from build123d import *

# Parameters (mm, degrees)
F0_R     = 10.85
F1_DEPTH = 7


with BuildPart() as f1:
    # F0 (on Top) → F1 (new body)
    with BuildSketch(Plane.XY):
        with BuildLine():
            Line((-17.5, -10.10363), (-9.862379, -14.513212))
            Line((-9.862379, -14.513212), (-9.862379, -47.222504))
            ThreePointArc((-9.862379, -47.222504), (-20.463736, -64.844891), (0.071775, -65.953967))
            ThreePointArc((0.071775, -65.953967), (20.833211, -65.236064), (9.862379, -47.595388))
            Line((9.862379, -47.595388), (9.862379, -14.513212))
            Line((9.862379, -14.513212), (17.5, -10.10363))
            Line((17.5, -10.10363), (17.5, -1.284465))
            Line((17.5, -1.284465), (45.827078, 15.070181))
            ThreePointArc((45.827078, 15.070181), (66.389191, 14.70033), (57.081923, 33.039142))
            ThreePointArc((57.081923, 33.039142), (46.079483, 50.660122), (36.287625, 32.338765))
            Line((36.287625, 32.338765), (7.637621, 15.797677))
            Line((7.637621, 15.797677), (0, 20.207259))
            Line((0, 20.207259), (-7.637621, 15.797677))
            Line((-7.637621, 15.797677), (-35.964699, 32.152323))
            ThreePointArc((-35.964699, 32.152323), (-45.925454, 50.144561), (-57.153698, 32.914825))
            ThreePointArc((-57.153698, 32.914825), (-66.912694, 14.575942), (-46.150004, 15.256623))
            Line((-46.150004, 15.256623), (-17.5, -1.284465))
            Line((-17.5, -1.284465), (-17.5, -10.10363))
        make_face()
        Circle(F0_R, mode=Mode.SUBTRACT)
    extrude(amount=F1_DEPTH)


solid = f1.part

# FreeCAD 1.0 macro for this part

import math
import FreeCAD as App
import Part
import Sketcher

V = App.Vector
Q = App.Units.Quantity

doc = App.newDocument("Part")
params = doc.addObject("Spreadsheet::Sheet", "Params")
for row, (alias, value) in enumerate([
    ("sketch1_radius", "12 mm"),
    ("sketch1_diameter", "21.7 mm"),
    ("pad1_length", "7 mm"),
], start=1):
    params.set(f"A{row}", alias)
    params.set(f"B{row}", "=" + value)
    params.setAlias(f"B{row}", alias)

body = doc.addObject("PartDesign::Body", "Body")

sketch1 = body.newObject("Sketcher::SketchObject", "Sketch")
sketch1.AttachmentSupport = (doc.getObject("XY_Plane"), [""])
sketch1.MapMode = "FlatFace"
sketch1.addGeometry([
    Part.LineSegment(V(-18, -10, 0), V(-10, -15, 0)),
    Part.LineSegment(V(-10, -15, 0), V(-10, -47, 0)),
    Part.ArcOfCircle(Part.Circle(V(-10, -59, 0), V(0, 0, 1), 12), math.radians(90), math.radians(326)),
    Part.ArcOfCircle(Part.Circle(V(10, -60, 0), V(0, 0, 1), 12), math.radians(-148), math.radians(92)),
    Part.LineSegment(V(10, -48, 0), V(10, -15, 0)),
    Part.LineSegment(V(10, -15, 0), V(18, -10, 0)),
    Part.LineSegment(V(18, -10, 0), V(18, -1, 0)),
    Part.LineSegment(V(18, -1, 0), V(46, 15, 0)),
    Part.ArcOfCircle(Part.Circle(V(56, 21, 0), V(0, 0, 1), 12), math.radians(-150), math.radians(86)),
    Part.ArcOfCircle(Part.Circle(V(46, 39, 0), V(0, 0, 1), 12), math.radians(-28), math.radians(212)),
    Part.LineSegment(V(36, 32, 0), V(8, 16, 0)),
    Part.LineSegment(V(8, 16, 0), V(0, 20, 0)),
    Part.LineSegment(V(0, 20, 0), V(-8, 16, 0)),
    Part.LineSegment(V(-8, 16, 0), V(-36, 32, 0)),
    Part.ArcOfCircle(Part.Circle(V(-46, 38, 0), V(0, 0, 1), 12), math.radians(-30), math.radians(206)),
    Part.ArcOfCircle(Part.Circle(V(-57, 21, 0), V(0, 0, 1), 12), math.radians(92), math.radians(332)),
    Part.LineSegment(V(-46, 15, 0), V(-18, -1, 0)),
    Part.LineSegment(V(-18, -1, 0), V(-18, -10, 0)),
    Part.Circle(V(0, 0, 0), V(0, 0, 1), 11),
], False)
sketch1.addConstraint([
    Sketcher.Constraint("Coincident", 0, 2, 1, 1),
    Sketcher.Constraint("Coincident", 1, 2, 2, 1),
    Sketcher.Constraint("Coincident", 2, 2, 3, 1),
    Sketcher.Constraint("Coincident", 3, 2, 4, 1),
    Sketcher.Constraint("Coincident", 4, 2, 5, 1),
    Sketcher.Constraint("Coincident", 5, 2, 6, 1),
    Sketcher.Constraint("Coincident", 6, 2, 7, 1),
    Sketcher.Constraint("Coincident", 7, 2, 8, 1),
    Sketcher.Constraint("Coincident", 8, 2, 9, 1),
    Sketcher.Constraint("Coincident", 9, 2, 10, 1),
    Sketcher.Constraint("Coincident", 10, 2, 11, 1),
    Sketcher.Constraint("Coincident", 11, 2, 12, 1),
    Sketcher.Constraint("Coincident", 12, 2, 13, 1),
    Sketcher.Constraint("Coincident", 13, 2, 14, 1),
    Sketcher.Constraint("Coincident", 14, 2, 15, 1),
    Sketcher.Constraint("Coincident", 15, 2, 16, 1),
    Sketcher.Constraint("Coincident", 16, 2, 17, 1),
    Sketcher.Constraint("Coincident", 17, 2, 0, 1),
    Sketcher.Constraint("Vertical", 1),
    Sketcher.Constraint("Vertical", 4),
    Sketcher.Constraint("Vertical", 6),
    Sketcher.Constraint("Vertical", 17),
    Sketcher.Constraint("Coincident", 18, 3, -1, 1),
    Sketcher.Constraint("Equal", 2, 3),
    Sketcher.Constraint("Equal", 3, 8),
    Sketcher.Constraint("Equal", 8, 9),
    Sketcher.Constraint("Equal", 9, 14),
    Sketcher.Constraint("Equal", 14, 15),
    Sketcher.Constraint("Symmetric", 0, 2, 4, 2, -2),
    Sketcher.Constraint("Symmetric", 10, 2, 12, 2, -2),
    Sketcher.Constraint("Symmetric", 6, 2, 16, 2, -2),
    Sketcher.Constraint("PointOnObject", 11, 2, -2),
    Sketcher.Constraint("Parallel", 5, 7),
    Sketcher.Constraint("Parallel", 7, 10),
    Sketcher.Constraint("Parallel", 0, 11),
    Sketcher.Constraint("Parallel", 10, 12),
    Sketcher.Constraint("Parallel", 11, 13),
    Sketcher.Constraint("Parallel", 13, 16),
    Sketcher.Constraint("Vertical", 2, 3, 0, 2),
    Sketcher.Constraint("Equal", 5, 11),
    Sketcher.Constraint("Equal", 7, 13),
    Sketcher.Constraint("Equal", 10, 16),
    Sketcher.Constraint("Radius", 2, Q("12 mm")),
    Sketcher.Constraint("Diameter", 18, Q("21.7 mm")),
    Sketcher.Constraint("Angle", 0, Q("-29.999997 deg")),
    Sketcher.Constraint("DistanceY", 7, 2, 8, 3, Q("6 mm")),
    Sketcher.Constraint("DistanceY", 13, 2, 14, 3, Q("6 mm")),
    Sketcher.Constraint("DistanceX", -1, 1, 5, 2, Q("17.5 mm")),
    Sketcher.Constraint("DistanceX", 14, 2, 13, 2, Q("21.188999 mm")),
    Sketcher.Constraint("DistanceX", 14, 3, 15, 2, Q("0.207 mm")),
    Sketcher.Constraint("DistanceX", 13, 2, -1, 1, Q("35.964699 mm")),
    Sketcher.Constraint("DistanceX", 2, 3, 3, 3, Q("20.107202 mm")),
    Sketcher.Constraint("DistanceY", 14, 3, 9, 3, Q("0.5146 mm")),
    Sketcher.Constraint("DistanceY", 15, 2, 13, 2, Q("16.8957 mm")),
    Sketcher.Constraint("DistanceY", 1, 2, 1, 1, Q("32.709292 mm")),
    Sketcher.Constraint("DistanceY", 4, 1, 4, 2, Q("33.082176 mm")),
    Sketcher.Constraint("DistanceY", 6, 1, 6, 2, Q("8.819165 mm")),
    Sketcher.Constraint("DistanceX", 2, 3, -1, 1, Q("9.862379 mm")),
    Sketcher.Constraint("DistanceY", 3, 3, -1, 1, Q("59.589292 mm")),
])
sketch1.setExpression("Constraints[42]", "Params.sketch1_radius")
sketch1.setExpression("Constraints[43]", "Params.sketch1_diameter")
pad1 = body.newObject("PartDesign::Pad", "Pad")
pad1.Profile = sketch1
pad1.setExpression("Length", "Params.pad1_length")

doc.recompute()
